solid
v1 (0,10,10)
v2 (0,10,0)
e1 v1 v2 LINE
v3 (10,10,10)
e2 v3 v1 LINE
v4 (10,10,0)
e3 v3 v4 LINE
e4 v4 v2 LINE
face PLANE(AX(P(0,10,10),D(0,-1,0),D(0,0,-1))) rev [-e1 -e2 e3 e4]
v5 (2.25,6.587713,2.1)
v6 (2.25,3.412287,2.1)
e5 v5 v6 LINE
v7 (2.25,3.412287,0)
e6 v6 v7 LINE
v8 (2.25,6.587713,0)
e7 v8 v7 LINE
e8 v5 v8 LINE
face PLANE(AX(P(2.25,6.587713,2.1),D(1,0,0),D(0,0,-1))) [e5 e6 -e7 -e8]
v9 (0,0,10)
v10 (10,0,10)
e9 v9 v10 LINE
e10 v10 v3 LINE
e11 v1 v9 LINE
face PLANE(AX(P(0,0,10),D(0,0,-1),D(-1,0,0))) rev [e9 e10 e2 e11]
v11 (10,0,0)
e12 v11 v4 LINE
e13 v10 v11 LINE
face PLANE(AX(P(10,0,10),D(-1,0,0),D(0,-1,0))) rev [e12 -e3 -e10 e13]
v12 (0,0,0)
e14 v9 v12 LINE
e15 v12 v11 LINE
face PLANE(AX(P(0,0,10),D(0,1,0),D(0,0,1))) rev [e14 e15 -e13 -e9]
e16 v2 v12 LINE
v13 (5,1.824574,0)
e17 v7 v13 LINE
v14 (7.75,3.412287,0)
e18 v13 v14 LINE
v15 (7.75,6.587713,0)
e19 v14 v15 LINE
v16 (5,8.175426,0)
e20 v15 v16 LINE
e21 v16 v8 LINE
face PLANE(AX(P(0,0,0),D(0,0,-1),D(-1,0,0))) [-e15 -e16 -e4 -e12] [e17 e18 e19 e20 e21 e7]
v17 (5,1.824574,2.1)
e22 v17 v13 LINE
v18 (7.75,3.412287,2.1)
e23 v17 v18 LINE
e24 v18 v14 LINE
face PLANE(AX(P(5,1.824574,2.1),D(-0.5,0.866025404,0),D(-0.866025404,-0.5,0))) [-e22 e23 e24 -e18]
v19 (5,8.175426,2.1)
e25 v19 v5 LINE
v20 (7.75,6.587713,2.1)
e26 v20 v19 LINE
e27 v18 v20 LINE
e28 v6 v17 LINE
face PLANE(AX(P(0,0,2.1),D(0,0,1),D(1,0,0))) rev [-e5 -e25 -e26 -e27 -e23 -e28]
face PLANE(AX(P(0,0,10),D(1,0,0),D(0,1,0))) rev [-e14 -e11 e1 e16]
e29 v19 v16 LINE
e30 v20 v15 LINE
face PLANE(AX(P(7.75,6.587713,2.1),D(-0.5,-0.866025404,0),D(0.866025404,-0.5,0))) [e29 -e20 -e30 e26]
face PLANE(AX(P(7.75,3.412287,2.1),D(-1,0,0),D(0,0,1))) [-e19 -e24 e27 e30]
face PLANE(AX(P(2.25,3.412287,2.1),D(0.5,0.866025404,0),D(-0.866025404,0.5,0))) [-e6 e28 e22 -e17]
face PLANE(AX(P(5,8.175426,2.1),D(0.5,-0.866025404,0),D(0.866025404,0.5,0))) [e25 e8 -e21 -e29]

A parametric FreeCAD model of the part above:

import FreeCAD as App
import Part
import Sketcher
from FreeCAD import Vector
Q = App.Units.Quantity


def add_polygon(sketch, points):
    """Adds a closed chain of lines whose ends are joined by coincident constraints."""
    first, n = sketch.GeometryCount, len(points)
    for a, b in zip(points, points[1:] + points[:1]):
        sketch.addGeometry(Part.LineSegment(App.Vector(*a, 0), App.Vector(*b, 0)), False)
    for i in range(n):
        sketch.addConstraint(Sketcher.Constraint("Coincident", first + i, 2, first + (i + 1) % n, 1))

doc = App.newDocument("Part")
body = doc.addObject("PartDesign::Body", "Body")

# Sketch on XY plane
sketch1 = doc.addObject("Sketcher::SketchObject", "Sketch")
body.addObject(sketch1)
sketch1.AttachmentSupport = (doc.XY_Plane, [""])
sketch1.MapMode = "FlatFace"
add_polygon(sketch1, [(0, 10), (0, 0), (10, 0), (10, 10)])  # lines 0-3
sketch1.addConstraint(Sketcher.Constraint("Vertical", 0))
sketch1.addConstraint(Sketcher.Constraint("Horizontal", 1))
sketch1.addConstraint(Sketcher.Constraint("Vertical", 2))
sketch1.addConstraint(Sketcher.Constraint("Horizontal", 3))
sketch1.addConstraint(Sketcher.Constraint("Coincident", 0, 2, -1, 1))
sketch1.addConstraint(Sketcher.Constraint("Equal", 3, 0))
sketch1.addConstraint(Sketcher.Constraint("DistanceX", 1, 1, 1, 2, Q("10 mm")))
pad1 = doc.addObject("PartDesign::Pad", "Pad")
body.addObject(pad1)
pad1.Profile = sketch1
pad1.Length = 10

# Sketch on XY plane
sketch2 = doc.addObject("Sketcher::SketchObject", "Sketch001")
body.addObject(sketch2)
sketch2.AttachmentSupport = (doc.XY_Plane, [""])
sketch2.MapMode = "FlatFace"
add_polygon(sketch2, [(5, 8.2), (2.2, 6.6), (2.2, 3.4), (5, 1.8), (7.8, 3.4), (7.8, 6.6)])  # lines 0-5
sketch2.addConstraint(Sketcher.Constraint("Vertical", 1))
sketch2.addConstraint(Sketcher.Constraint("Vertical", 4))
sketch2.addConstraint(Sketcher.Constraint("Parallel", 0, 3))
sketch2.addConstraint(Sketcher.Constraint("Parallel", 2, 5))
sketch2.addConstraint(Sketcher.Constraint("Horizontal", 1, 2, 3, 2))
sketch2.addConstraint(Sketcher.Constraint("Horizontal", 0, 2, 4, 2))
sketch2.addConstraint(Sketcher.Constraint("Vertical", 2, 2, 5, 2))
sketch2.addConstraint(Sketcher.Constraint("Angle", 0, Q("-150 deg")))
sketch2.addConstraint(Sketcher.Constraint("DistanceX", -1, 1, 2, 2, Q("5 mm")))
sketch2.addConstraint(Sketcher.Constraint("DistanceX", 1, 2, 3, 2, Q("5.5 mm")))
sketch2.addConstraint(Sketcher.Constraint("DistanceY", 1, 2, 1, 1, Q("3.175426 mm")))
sketch2.addConstraint(Sketcher.Constraint("DistanceY", -1, 1, 0, 2, Q("6.587713 mm")))
pocket1 = doc.addObject("PartDesign::Pocket", "Pocket")
body.addObject(pocket1)
pocket1.Profile = sketch2
pocket1.Length = 2.1
pocket1.Reversed = True

doc.recompute()
